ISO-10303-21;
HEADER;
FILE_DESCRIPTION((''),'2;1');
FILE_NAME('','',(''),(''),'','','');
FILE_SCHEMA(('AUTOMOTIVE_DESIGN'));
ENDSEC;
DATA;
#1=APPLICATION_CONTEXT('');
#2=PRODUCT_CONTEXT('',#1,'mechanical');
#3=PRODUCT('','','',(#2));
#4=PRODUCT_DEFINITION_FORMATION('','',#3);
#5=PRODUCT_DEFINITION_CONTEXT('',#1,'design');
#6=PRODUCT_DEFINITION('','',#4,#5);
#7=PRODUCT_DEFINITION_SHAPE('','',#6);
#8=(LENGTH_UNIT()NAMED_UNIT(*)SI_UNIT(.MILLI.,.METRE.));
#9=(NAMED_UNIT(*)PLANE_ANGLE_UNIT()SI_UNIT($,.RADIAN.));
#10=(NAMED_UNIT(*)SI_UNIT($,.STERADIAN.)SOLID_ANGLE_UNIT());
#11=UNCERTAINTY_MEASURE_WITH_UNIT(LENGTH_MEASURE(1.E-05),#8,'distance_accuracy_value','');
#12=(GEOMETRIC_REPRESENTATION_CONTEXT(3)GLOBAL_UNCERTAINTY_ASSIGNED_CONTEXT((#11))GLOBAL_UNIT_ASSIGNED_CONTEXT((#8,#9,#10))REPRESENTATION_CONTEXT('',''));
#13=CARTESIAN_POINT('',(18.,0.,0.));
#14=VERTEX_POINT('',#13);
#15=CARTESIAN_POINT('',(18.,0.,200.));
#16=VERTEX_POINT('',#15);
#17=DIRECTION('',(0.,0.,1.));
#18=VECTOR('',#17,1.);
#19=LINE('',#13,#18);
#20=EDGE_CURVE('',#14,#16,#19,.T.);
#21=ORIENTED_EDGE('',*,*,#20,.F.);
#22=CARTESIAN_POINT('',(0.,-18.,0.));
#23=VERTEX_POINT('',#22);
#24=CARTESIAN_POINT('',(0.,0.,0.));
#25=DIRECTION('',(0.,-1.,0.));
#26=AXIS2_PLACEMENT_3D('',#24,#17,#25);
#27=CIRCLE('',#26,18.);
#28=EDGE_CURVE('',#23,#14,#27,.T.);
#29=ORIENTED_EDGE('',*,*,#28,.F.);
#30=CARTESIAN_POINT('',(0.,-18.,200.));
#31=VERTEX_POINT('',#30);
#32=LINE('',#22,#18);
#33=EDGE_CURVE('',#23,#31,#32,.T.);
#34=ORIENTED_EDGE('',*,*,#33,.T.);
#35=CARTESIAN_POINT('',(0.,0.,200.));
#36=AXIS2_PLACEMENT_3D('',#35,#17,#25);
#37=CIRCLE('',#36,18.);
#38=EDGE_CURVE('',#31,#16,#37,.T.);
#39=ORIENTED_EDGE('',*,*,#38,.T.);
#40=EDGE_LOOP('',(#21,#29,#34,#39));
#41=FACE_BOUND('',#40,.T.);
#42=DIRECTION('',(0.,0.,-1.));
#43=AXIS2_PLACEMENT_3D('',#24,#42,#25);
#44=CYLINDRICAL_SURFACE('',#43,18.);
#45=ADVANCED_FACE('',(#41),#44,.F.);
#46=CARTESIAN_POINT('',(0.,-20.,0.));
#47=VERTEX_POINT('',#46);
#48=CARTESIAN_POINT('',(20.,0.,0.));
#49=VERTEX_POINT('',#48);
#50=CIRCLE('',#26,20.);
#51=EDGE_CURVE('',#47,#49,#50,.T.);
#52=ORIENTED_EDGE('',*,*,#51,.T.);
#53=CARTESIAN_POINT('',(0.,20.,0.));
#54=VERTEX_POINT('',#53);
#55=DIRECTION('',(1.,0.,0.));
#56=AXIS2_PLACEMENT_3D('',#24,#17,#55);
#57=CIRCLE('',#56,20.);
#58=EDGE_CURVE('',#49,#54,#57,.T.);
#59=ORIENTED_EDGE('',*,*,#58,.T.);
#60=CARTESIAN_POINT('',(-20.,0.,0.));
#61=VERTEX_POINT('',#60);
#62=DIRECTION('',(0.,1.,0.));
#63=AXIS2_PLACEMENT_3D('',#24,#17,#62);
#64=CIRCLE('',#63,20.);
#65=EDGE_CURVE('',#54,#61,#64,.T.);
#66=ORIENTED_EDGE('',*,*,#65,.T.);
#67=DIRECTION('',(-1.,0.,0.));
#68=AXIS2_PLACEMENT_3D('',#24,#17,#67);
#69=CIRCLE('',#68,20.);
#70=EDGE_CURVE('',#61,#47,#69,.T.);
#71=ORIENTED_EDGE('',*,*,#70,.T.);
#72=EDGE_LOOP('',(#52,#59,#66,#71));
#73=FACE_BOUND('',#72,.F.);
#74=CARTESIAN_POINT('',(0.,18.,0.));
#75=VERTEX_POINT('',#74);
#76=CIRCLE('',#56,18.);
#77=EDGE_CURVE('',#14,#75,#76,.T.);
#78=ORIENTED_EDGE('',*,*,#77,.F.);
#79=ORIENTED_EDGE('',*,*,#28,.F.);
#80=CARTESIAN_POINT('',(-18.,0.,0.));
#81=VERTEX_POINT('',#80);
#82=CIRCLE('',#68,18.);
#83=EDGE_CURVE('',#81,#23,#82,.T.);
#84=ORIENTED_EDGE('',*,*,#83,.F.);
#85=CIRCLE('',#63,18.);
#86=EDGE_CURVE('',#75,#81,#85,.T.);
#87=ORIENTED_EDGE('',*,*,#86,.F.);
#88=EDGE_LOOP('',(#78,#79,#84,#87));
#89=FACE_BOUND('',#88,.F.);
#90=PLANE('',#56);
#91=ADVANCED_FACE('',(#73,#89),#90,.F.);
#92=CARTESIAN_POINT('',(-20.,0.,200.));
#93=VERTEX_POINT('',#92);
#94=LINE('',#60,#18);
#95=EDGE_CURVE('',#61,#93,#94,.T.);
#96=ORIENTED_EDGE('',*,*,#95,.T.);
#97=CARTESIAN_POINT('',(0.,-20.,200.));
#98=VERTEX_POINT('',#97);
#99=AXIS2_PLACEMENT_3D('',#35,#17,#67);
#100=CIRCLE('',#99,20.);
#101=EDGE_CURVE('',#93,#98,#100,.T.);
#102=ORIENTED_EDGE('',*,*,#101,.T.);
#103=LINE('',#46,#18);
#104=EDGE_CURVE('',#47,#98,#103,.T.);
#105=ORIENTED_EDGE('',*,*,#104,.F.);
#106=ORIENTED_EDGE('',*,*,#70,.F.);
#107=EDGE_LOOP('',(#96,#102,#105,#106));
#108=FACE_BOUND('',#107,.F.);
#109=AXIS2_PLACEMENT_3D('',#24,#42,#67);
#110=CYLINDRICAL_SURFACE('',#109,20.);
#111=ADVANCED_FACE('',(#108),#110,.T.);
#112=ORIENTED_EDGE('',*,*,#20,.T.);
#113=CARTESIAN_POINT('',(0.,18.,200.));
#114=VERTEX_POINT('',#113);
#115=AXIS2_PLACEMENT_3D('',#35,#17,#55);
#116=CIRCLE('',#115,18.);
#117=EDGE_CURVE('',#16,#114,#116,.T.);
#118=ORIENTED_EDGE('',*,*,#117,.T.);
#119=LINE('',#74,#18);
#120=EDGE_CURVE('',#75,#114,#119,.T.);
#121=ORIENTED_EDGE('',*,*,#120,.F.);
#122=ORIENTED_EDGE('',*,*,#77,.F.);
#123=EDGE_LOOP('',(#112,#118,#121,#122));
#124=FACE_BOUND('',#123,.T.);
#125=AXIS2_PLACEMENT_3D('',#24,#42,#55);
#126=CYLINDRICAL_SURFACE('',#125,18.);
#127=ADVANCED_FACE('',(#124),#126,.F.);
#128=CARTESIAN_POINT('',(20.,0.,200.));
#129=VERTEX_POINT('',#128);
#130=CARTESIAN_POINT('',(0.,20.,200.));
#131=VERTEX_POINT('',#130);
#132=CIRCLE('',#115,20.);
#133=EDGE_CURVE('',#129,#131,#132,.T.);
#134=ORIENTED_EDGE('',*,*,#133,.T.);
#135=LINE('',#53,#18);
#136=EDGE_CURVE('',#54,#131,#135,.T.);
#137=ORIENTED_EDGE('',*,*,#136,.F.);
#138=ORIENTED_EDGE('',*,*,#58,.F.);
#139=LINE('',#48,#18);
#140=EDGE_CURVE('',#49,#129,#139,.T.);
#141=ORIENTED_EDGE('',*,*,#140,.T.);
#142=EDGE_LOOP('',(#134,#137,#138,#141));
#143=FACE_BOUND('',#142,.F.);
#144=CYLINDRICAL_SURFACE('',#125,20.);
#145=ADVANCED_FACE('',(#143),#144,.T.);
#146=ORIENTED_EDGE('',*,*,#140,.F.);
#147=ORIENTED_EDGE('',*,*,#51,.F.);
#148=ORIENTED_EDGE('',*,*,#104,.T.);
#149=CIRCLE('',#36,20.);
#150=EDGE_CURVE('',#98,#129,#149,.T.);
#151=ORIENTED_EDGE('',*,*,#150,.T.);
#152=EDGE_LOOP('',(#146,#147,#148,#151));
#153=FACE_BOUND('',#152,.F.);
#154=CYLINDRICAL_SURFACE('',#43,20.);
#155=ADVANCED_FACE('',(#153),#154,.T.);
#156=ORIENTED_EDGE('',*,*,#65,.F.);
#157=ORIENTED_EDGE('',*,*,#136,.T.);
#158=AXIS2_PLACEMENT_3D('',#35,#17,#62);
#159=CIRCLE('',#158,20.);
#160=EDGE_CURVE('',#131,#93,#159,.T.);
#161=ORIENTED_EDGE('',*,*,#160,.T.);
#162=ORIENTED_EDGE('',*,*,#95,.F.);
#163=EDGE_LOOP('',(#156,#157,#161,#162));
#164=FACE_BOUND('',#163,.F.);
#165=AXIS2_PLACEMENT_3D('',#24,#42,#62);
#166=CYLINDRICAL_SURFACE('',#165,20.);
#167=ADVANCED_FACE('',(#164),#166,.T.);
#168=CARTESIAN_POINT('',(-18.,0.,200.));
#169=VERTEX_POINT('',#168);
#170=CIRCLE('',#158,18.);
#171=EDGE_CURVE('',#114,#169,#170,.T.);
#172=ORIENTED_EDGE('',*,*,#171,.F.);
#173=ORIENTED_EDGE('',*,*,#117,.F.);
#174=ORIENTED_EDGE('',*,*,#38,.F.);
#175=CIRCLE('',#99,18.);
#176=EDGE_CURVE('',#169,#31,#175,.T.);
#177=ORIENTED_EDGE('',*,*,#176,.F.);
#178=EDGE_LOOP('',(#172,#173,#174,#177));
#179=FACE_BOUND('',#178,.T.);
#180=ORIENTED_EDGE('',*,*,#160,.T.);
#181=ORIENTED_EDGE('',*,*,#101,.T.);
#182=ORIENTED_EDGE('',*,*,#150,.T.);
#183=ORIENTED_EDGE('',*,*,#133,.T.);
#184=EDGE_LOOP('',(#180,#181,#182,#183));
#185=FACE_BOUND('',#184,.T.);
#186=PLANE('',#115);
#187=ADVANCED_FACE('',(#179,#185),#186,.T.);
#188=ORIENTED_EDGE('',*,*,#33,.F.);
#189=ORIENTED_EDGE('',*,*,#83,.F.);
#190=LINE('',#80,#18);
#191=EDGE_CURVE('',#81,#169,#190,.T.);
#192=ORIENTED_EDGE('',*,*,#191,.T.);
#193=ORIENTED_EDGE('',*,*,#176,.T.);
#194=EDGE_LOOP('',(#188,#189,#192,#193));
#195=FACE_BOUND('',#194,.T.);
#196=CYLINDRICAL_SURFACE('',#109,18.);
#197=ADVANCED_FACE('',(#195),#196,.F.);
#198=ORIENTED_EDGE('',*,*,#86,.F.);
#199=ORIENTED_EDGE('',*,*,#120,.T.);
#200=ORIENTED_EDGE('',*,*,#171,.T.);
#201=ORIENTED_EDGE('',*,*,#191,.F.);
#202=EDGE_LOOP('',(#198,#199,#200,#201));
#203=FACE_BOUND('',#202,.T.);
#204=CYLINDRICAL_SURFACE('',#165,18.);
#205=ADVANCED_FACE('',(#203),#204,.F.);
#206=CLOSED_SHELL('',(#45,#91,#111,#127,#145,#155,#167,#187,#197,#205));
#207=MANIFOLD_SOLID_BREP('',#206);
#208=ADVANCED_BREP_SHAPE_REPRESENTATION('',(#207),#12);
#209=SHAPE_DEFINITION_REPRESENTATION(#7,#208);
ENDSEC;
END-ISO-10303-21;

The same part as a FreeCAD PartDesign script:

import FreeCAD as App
import Part
import Sketcher

doc = App.newDocument("Part")
params = doc.addObject("Spreadsheet::Sheet", "Params")
for row, (alias, value) in enumerate([
    ("sketch1_diameter", "40 mm"),
    ("sketch1_diameter2", "36 mm"),
    ("pad1_length", "200 mm"),
], start=1):
    params.set(f"A{row}", alias)
    params.set(f"B{row}", "=" + value)
    params.setAlias(f"B{row}", alias)

body = doc.addObject("PartDesign::Body", "Body")

sketch1 = body.newObject("Sketcher::SketchObject", "Sketch")
sketch1.AttachmentSupport = (doc.getObject("XY_Plane"), [""])
sketch1.MapMode = "FlatFace"
sketch1.addGeometry(Part.Circle(App.Vector(0, 0, 0), App.Vector(0, 0, 1), 20), False)
sketch1.addGeometry(Part.Circle(App.Vector(0, 0, 0), App.Vector(0, 0, 1), 18), False)
sketch1.addConstraint(Sketcher.Constraint("Coincident", 0, 3, -1, 1))
sketch1.addConstraint(Sketcher.Constraint("Coincident", 1, 3, -1, 1))
sketch1.addConstraint(Sketcher.Constraint("Diameter", 0, 40.0))
sketch1.addConstraint(Sketcher.Constraint("Diameter", 1, 36.0))
sketch1.setExpression("Constraints[2]", "Params.sketch1_diameter")
sketch1.setExpression("Constraints[3]", "Params.sketch1_diameter2")
pad1 = body.newObject("PartDesign::Pad", "Pad")
pad1.Profile = sketch1
pad1.setExpression("Length", "Params.pad1_length")

doc.recompute()
